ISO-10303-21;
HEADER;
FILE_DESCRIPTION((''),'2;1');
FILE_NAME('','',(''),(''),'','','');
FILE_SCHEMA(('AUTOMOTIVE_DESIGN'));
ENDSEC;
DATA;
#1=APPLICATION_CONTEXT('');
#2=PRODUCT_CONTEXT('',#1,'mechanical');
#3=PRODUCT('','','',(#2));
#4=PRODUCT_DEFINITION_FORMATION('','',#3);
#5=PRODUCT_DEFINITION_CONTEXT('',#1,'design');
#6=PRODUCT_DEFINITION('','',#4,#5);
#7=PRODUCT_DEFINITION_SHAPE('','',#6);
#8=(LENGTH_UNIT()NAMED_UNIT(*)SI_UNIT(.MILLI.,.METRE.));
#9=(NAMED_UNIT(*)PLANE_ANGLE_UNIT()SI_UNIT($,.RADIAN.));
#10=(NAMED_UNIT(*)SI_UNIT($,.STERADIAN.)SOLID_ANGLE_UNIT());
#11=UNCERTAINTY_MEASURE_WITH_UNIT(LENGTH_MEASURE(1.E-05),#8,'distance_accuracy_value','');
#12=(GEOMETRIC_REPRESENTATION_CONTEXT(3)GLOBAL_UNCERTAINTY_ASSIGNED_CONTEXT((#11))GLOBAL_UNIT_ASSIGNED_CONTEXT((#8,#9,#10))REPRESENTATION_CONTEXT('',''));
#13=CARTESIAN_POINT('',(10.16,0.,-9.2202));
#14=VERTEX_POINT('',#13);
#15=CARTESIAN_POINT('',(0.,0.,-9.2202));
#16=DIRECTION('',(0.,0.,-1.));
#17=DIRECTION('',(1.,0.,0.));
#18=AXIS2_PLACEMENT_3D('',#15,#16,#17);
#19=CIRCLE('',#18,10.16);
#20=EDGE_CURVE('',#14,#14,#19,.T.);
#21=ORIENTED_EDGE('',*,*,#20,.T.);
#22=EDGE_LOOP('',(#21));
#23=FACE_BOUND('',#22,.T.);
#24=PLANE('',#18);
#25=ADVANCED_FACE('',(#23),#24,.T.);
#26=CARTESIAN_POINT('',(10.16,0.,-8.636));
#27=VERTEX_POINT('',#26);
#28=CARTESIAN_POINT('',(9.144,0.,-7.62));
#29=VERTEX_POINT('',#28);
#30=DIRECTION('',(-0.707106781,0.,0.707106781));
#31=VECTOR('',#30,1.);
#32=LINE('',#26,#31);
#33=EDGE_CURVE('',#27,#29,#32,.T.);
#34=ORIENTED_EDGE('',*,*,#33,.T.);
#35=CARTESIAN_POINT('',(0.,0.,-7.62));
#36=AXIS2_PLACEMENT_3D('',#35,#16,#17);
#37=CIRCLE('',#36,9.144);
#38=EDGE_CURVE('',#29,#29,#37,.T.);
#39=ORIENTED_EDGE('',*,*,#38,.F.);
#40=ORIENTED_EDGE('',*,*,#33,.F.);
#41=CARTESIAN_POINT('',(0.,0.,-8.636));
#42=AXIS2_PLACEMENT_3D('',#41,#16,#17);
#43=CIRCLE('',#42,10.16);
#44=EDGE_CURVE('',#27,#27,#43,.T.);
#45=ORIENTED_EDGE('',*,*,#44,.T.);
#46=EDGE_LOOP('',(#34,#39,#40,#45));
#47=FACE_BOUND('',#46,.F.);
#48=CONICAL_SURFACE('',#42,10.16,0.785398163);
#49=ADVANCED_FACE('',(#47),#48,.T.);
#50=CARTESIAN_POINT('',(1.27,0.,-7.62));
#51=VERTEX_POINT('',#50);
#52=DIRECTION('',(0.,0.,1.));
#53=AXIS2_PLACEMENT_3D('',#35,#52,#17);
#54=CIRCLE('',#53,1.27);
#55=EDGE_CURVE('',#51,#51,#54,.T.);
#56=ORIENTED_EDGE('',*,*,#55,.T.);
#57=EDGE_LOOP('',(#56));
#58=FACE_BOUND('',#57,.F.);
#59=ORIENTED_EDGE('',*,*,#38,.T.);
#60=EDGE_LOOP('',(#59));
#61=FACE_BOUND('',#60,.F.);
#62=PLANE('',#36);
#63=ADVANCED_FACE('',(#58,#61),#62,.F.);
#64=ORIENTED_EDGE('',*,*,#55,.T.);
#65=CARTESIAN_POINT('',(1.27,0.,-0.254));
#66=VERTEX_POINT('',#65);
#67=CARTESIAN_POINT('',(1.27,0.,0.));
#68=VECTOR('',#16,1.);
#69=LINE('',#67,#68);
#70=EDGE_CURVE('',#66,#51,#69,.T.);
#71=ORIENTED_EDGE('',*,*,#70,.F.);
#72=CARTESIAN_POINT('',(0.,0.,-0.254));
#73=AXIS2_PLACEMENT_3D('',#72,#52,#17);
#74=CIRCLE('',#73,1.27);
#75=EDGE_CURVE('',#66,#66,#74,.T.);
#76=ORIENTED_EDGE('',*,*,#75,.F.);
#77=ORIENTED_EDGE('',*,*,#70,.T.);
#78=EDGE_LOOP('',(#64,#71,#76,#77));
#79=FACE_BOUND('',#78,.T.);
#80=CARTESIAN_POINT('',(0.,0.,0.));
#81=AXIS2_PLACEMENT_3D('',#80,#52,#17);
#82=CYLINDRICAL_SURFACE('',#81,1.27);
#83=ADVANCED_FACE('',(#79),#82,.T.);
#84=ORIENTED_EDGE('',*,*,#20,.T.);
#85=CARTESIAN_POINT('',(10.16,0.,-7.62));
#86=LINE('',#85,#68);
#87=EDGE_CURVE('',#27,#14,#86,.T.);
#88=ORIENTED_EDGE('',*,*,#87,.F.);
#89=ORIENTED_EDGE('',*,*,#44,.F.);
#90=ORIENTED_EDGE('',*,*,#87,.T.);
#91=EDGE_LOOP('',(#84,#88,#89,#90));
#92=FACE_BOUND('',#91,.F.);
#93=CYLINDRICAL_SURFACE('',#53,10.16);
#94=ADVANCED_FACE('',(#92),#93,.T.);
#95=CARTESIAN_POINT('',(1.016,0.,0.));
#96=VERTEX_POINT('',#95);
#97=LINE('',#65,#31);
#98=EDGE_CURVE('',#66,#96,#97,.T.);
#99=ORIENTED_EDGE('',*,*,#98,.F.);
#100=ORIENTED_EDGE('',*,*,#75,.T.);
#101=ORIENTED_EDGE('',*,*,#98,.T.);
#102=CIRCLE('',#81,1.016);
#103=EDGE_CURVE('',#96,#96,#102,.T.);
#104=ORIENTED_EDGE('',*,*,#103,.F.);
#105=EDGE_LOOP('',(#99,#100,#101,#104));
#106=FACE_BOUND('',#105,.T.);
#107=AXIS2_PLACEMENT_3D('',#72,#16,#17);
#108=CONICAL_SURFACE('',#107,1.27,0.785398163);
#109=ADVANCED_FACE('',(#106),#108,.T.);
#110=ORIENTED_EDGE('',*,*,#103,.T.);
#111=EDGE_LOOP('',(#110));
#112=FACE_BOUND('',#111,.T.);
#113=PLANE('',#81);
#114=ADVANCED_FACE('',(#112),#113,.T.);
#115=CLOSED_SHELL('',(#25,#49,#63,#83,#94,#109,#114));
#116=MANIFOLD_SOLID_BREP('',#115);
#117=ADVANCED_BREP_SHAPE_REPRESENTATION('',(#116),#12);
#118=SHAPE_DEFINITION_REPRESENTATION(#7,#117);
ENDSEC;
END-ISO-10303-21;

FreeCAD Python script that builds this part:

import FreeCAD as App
import Part
import Sketcher
Q = App.Units.Quantity


def edges_at(feature, points):
    """Names of the edges that pass closest to the given points."""
    edges = feature.Shape.Edges
    near = lambda p: min(range(len(edges)), key=lambda i: edges[i].distToShape(Part.Vertex(*p))[0])
    return sorted({f"Edge{near(p) + 1}" for p in points})

doc = App.newDocument("Part")
params = doc.addObject("Spreadsheet::Sheet", "Params")
for row, (alias, value) in enumerate([
    ("sketch1_diameter", "0.1 in"),
    ("pad1_length", "0.3 in"),
    ("sketch2_diameter", "0.8 in"),
    ("pad2_length", "0.063 in"),
    ("chamfer_size", "0.04 in"),
    ("chamfer2_size", "0.01 in"),
], start=1):
    params.set(f"A{row}", alias)
    params.set(f"B{row}", "=" + value)
    params.setAlias(f"B{row}", alias)

body = doc.addObject("PartDesign::Body", "Body")

# Sketch on XY plane
sketch1 = doc.addObject("Sketcher::SketchObject", "Sketch")
body.addObject(sketch1)
sketch1.AttachmentSupport = (doc.XY_Plane, [""])
sketch1.MapMode = "FlatFace"
sketch1.addGeometry(Part.Circle(App.Vector(0, 0, 0), App.Vector(0, 0, 1), 1.3), False)
sketch1.addConstraint(Sketcher.Constraint("Coincident", 0, 3, -1, 1))
sketch1.addConstraint(Sketcher.Constraint("Diameter", 0, Q("0.1 in")))
sketch1.setExpression("Constraints[1]", "Params.sketch1_diameter")
pad1 = doc.addObject("PartDesign::Pad", "Pad")
body.addObject(pad1)
pad1.Profile = sketch1
pad1.setExpression("Length", "Params.pad1_length")
pad1.Reversed = True

# Sketch on XY plane
sketch2 = doc.addObject("Sketcher::SketchObject", "Sketch001")
body.addObject(sketch2)
sketch2.AttachmentSupport = (doc.XY_Plane, [""])
sketch2.MapMode = "FlatFace"
sketch2.AttachmentOffset = App.Placement(App.Vector(0, 0, -0.3 * 25.4), App.Rotation())
sketch2.addGeometry(Part.Circle(App.Vector(0, 0, 0), App.Vector(0, 0, 1), 10), False)
sketch2.addConstraint(Sketcher.Constraint("Coincident", 0, 3, -1, 1))
sketch2.addConstraint(Sketcher.Constraint("Diameter", 0, Q("0.8 in")))
sketch2.setExpression("Constraints[1]", "Params.sketch2_diameter")
pad2 = doc.addObject("PartDesign::Pad", "Pad001")
body.addObject(pad2)
pad2.Profile = sketch2
pad2.setExpression("Length", "Params.pad2_length")
pad2.Reversed = True
doc.recompute()

chamfer = doc.addObject("PartDesign::Chamfer", "Chamfer")
body.addObject(chamfer)
chamfer.Base = (pad2, edges_at(pad2, [(-10.16, 0, -7.62)]))
chamfer.setExpression("Size", "Params.chamfer_size")
doc.recompute()

chamfer2 = doc.addObject("PartDesign::Chamfer", "Chamfer001")
body.addObject(chamfer2)
chamfer2.Base = (chamfer, edges_at(chamfer, [(-1.27, 0, 0)]))
chamfer2.setExpression("Size", "Params.chamfer2_size")

doc.recompute()
